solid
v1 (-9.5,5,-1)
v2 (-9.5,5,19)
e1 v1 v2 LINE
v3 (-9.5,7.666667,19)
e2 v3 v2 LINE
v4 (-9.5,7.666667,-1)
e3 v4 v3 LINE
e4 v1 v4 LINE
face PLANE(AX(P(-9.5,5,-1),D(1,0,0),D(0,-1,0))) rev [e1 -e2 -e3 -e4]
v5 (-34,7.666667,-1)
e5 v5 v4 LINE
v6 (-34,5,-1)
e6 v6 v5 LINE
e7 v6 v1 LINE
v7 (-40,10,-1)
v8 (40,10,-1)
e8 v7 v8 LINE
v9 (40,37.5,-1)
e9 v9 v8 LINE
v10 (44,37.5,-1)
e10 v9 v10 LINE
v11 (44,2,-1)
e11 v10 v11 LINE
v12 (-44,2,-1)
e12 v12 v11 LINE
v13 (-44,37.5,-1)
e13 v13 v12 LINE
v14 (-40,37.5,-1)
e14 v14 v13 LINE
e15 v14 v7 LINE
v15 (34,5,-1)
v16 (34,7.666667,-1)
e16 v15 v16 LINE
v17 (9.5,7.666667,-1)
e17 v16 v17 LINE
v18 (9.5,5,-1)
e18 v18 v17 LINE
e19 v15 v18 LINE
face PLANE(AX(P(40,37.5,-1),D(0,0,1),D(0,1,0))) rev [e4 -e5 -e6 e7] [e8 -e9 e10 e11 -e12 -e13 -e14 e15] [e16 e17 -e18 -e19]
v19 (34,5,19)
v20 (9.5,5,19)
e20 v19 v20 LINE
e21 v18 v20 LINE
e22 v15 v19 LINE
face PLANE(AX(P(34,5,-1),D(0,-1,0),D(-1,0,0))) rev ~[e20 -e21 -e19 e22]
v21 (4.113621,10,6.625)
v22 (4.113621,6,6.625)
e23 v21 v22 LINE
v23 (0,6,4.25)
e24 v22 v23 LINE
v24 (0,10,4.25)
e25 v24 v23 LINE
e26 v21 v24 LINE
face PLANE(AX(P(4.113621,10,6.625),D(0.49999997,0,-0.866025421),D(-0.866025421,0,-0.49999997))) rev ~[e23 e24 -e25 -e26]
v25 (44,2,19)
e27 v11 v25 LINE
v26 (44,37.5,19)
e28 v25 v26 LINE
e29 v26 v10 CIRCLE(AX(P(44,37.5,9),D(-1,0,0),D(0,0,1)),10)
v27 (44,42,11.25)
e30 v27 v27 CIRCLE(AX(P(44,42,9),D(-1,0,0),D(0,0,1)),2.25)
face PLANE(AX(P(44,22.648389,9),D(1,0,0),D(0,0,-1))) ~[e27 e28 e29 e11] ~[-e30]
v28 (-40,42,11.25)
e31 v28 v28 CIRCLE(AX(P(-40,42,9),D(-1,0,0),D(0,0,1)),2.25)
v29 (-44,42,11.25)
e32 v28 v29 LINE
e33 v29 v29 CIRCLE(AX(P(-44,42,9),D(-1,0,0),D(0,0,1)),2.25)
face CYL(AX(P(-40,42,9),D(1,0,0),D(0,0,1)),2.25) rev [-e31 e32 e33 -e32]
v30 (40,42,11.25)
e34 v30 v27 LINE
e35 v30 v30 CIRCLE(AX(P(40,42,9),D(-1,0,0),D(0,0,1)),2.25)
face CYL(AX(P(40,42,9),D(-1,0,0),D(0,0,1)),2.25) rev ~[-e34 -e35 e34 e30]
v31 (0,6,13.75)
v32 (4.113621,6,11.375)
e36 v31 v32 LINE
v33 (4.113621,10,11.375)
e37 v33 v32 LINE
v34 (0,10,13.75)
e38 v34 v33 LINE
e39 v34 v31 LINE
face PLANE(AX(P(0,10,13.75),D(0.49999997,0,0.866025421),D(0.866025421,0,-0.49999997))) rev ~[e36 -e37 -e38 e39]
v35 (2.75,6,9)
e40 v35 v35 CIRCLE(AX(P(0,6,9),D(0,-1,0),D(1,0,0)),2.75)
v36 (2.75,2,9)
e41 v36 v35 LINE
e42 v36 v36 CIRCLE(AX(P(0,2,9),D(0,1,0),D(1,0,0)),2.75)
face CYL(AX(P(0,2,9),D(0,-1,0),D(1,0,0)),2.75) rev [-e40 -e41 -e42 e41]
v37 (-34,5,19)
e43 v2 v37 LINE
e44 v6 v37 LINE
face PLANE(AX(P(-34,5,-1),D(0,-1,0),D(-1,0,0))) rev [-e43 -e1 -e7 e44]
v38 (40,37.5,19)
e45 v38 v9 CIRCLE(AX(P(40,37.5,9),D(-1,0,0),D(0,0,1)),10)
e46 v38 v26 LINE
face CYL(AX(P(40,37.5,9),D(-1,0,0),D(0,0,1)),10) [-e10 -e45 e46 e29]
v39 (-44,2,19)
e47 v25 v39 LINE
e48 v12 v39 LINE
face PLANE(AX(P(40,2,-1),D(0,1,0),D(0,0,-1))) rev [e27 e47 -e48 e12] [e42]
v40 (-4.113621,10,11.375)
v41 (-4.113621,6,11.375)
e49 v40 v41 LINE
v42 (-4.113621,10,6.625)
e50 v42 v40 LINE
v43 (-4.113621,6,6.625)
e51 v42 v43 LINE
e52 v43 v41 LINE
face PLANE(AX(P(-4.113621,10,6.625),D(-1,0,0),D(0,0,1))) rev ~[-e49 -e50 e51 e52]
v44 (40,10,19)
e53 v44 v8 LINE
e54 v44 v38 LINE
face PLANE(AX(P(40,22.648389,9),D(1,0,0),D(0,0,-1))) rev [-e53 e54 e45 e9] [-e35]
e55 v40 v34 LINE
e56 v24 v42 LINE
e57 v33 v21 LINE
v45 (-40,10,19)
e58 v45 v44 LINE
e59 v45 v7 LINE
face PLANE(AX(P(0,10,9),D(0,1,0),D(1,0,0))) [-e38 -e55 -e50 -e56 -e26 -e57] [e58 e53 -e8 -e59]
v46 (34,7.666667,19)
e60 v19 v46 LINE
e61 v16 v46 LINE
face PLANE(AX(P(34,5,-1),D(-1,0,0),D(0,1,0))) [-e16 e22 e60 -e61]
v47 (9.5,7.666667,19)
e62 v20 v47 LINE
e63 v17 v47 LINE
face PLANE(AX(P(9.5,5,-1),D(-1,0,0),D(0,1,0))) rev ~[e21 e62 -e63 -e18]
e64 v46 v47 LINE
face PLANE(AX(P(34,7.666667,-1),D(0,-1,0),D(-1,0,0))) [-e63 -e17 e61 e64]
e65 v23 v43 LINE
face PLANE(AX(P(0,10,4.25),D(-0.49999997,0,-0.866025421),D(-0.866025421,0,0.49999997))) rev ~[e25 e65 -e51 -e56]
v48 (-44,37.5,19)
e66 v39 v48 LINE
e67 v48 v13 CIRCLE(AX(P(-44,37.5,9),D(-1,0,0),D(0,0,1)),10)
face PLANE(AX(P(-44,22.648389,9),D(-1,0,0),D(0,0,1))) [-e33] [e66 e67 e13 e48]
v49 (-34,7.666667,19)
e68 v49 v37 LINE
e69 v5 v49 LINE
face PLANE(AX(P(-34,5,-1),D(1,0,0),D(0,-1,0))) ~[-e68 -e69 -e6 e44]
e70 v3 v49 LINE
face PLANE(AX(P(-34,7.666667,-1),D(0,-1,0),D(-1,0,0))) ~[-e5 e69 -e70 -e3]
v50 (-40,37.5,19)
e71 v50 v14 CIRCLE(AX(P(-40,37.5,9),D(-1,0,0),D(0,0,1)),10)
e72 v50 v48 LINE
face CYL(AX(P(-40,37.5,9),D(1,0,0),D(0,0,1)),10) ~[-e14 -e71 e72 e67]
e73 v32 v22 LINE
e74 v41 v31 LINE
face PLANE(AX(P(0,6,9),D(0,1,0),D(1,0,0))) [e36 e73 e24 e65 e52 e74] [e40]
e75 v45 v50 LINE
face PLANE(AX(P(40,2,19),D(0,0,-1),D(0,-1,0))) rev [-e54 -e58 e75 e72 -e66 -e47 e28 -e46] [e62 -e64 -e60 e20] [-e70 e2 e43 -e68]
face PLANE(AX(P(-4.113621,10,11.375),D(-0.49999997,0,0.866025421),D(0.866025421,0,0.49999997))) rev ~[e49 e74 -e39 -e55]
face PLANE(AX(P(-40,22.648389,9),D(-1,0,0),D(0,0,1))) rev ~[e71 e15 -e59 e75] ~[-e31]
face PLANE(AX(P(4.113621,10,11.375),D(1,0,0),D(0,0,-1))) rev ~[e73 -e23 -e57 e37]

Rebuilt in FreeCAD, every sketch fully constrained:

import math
import FreeCAD as App
import Part
import Sketcher
from FreeCAD import Vector
Q = App.Units.Quantity


def add_polygon(sketch, points):
    """Adds a closed chain of lines whose ends are joined by coincident constraints."""
    first, n = sketch.GeometryCount, len(points)
    for a, b in zip(points, points[1:] + points[:1]):
        sketch.addGeometry(Part.LineSegment(App.Vector(*a, 0), App.Vector(*b, 0)), False)
    for i in range(n):
        sketch.addConstraint(Sketcher.Constraint("Coincident", first + i, 2, first + (i + 1) % n, 1))

doc = App.newDocument("Part")
body = doc.addObject("PartDesign::Body", "Body")

# Sketch on XZ plane
sketch1 = body.newObject("Sketcher::SketchObject", "Sketch")
sketch1.AttachmentSupport = (doc.getObject("XZ_Plane"), [""])
sketch1.MapMode = "FlatFace"
add_polygon(sketch1, [(-40, 10), (-40, -10), (40, -10), (40, 10)])  # lines 0-3
sketch1.addGeometry(Part.Circle(Vector(0, 0, 0), Vector(0, 0, 1), 2.8), False)  # 4
sketch1.addConstraint(Sketcher.Constraint("Vertical", 0))
sketch1.addConstraint(Sketcher.Constraint("Horizontal", 1))
sketch1.addConstraint(Sketcher.Constraint("Vertical", 2))
sketch1.addConstraint(Sketcher.Constraint("Horizontal", 3))
sketch1.addConstraint(Sketcher.Constraint("Coincident", 4, 3, -1, 1))
sketch1.addConstraint(Sketcher.Constraint("Symmetric", 0, 2, 2, 2, -1, 1))
sketch1.addConstraint(Sketcher.Constraint("Diameter", 4, 5.5))
sketch1.addConstraint(Sketcher.Constraint("DistanceX", 1, 1, 1, 2, 80.0))
sketch1.addConstraint(Sketcher.Constraint("DistanceY", 0, 2, 0, 1, 20.0))
pad1 = body.newObject("PartDesign::Pad", "Pad")
pad1.Profile = sketch1
pad1.Length = 8

# Sketch on XZ plane
sketch2 = body.newObject("Sketcher::SketchObject", "Sketch001")
sketch2.AttachmentSupport = (doc.getObject("XZ_Plane"), [""])
sketch2.MapMode = "FlatFace"
sketch2.AttachmentOffset = App.Placement(Vector(0, 0, 8), App.Rotation())
add_polygon(sketch2, [(4.1, 2.4), (0, 4.8), (-4.1, 2.4), (-4.1, -2.4), (0, -4.8), (4.1, -2.4)])  # lines 0-5
sketch2.addConstraint(Sketcher.Constraint("Vertical", 2))
sketch2.addConstraint(Sketcher.Constraint("Vertical", 5))
sketch2.addConstraint(Sketcher.Constraint("Symmetric", 0, 2, 3, 2, -1, 1))
sketch2.addConstraint(Sketcher.Constraint("Symmetric", 1, 2, 4, 2, -1, 1))
sketch2.addConstraint(Sketcher.Constraint("PointOnObject", 0, 2, -2))
sketch2.addConstraint(Sketcher.Constraint("Parallel", 0, 3))
sketch2.addConstraint(Sketcher.Constraint("Horizontal", 2, 2, 4, 2))
sketch2.addConstraint(Sketcher.Constraint("Angle", 0, Q("150.000002 deg")))
sketch2.addConstraint(Sketcher.Constraint("DistanceY", 2, 2, 2, 1, 4.75))
sketch2.addConstraint(Sketcher.Constraint("DistanceY", 3, 2, 0, 2, 9.5))
pocket1 = body.newObject("PartDesign::Pocket", "Pocket")
pocket1.Profile = sketch2
pocket1.Length = 4

# Sketch on XY plane
sketch3 = body.newObject("Sketcher::SketchObject", "Sketch002")
sketch3.AttachmentSupport = (doc.getObject("XY_Plane"), [""])
sketch3.MapMode = "FlatFace"
sketch3.AttachmentOffset = App.Placement(Vector(0, 0, 10), App.Rotation())
add_polygon(sketch3, [(34, -5.7), (34, -3), (9.5, -3), (9.5, -5.7)])  # lines 0-3
sketch3.addConstraint(Sketcher.Constraint("Vertical", 0))
sketch3.addConstraint(Sketcher.Constraint("Horizontal", 1))
sketch3.addConstraint(Sketcher.Constraint("Vertical", 2))
sketch3.addConstraint(Sketcher.Constraint("Horizontal", 3))
sketch3.addConstraint(Sketcher.Constraint("DistanceX", 1, 2, 1, 1, 24.5))
sketch3.addConstraint(Sketcher.Constraint("DistanceX", -1, 1, 0, 2, 34.0))
sketch3.addConstraint(Sketcher.Constraint("DistanceY", 0, 2, -1, 1, 3.000001))
sketch3.addConstraint(Sketcher.Constraint("DistanceY", 0, 1, 0, 2, 2.666667))
pocket2 = body.newObject("PartDesign::Pocket", "Pocket001")
pocket2.Profile = sketch3
pocket2.Type = "ThroughAll"

# Sketch on YZ plane
sketch4 = body.newObject("Sketcher::SketchObject", "Sketch003")
sketch4.AttachmentSupport = (doc.getObject("YZ_Plane"), [""])
sketch4.MapMode = "FlatFace"
sketch4.AttachmentOffset = App.Placement(Vector(0, 0, -40), App.Rotation())
sketch4.addGeometry(Part.LineSegment(Vector(0, 10, 0), Vector(0, -10, 0)), False)
sketch4.addGeometry(Part.LineSegment(Vector(0, -10, 0), Vector(-35.5, -10, 0)), False)
sketch4.addGeometry(Part.ArcOfCircle(Part.Circle(Vector(-35.5, 0, 0), Vector(0, 0, 1), 10), math.radians(90), math.radians(270)), False)
sketch4.addGeometry(Part.LineSegment(Vector(-35.5, 10, 0), Vector(0, 10, 0)), False)
sketch4.addGeometry(Part.Circle(Vector(-40, 0, 0), Vector(0, 0, 1), 2.2), False)
sketch4.addConstraint(Sketcher.Constraint("Coincident", 0, 2, 1, 1))
sketch4.addConstraint(Sketcher.Constraint("Tangent", 1, 2, 2, 2))
sketch4.addConstraint(Sketcher.Constraint("Tangent", 2, 1, 3, 1))
sketch4.addConstraint(Sketcher.Constraint("Coincident", 3, 2, 0, 1))
sketch4.addConstraint(Sketcher.Constraint("Vertical", 0))
sketch4.addConstraint(Sketcher.Constraint("Horizontal", 1))
sketch4.addConstraint(Sketcher.Constraint("Horizontal", 3))
sketch4.addConstraint(Sketcher.Constraint("Symmetric", 0, 2, 3, 2, -1, 1))
sketch4.addConstraint(Sketcher.Constraint("PointOnObject", 4, 3, -1))
sketch4.addConstraint(Sketcher.Constraint("Radius", 2, 10.0))
sketch4.addConstraint(Sketcher.Constraint("Diameter", 4, 4.5))
sketch4.addConstraint(Sketcher.Constraint("DistanceX", 1, 2, 1, 1, 35.5))
sketch4.addConstraint(Sketcher.Constraint("DistanceX", 4, 3, -1, 1, 40.0))
pad2 = body.newObject("PartDesign::Pad", "Pad001")
pad2.Profile = sketch4
pad2.Length = 4
pad2.Reversed = True
doc.recompute()

mirrored = body.newObject("PartDesign::Mirrored", "Mirrored")
mirrored.Originals = [pad2]
mirrored.MirrorPlane = (doc.getObject("YZ_Plane"), [""])
body.Tip = mirrored
doc.recompute()

mirrored2 = body.newObject("PartDesign::Mirrored", "Mirrored001")
mirrored2.Originals = [pocket2]
mirrored2.MirrorPlane = (doc.getObject("YZ_Plane"), [""])
body.Tip = mirrored2
body2 = doc.addObject("PartDesign::Body", "Body001")
doc.recompute()

body.Placement = App.Placement(Vector(0, 2, 9), App.Rotation(Vector(1, 0, 0), 180))
boolean = body2.newObject("PartDesign::Boolean", "Boolean")
boolean.Type = "Fuse"
boolean.addObjects([body])

doc.recompute()
